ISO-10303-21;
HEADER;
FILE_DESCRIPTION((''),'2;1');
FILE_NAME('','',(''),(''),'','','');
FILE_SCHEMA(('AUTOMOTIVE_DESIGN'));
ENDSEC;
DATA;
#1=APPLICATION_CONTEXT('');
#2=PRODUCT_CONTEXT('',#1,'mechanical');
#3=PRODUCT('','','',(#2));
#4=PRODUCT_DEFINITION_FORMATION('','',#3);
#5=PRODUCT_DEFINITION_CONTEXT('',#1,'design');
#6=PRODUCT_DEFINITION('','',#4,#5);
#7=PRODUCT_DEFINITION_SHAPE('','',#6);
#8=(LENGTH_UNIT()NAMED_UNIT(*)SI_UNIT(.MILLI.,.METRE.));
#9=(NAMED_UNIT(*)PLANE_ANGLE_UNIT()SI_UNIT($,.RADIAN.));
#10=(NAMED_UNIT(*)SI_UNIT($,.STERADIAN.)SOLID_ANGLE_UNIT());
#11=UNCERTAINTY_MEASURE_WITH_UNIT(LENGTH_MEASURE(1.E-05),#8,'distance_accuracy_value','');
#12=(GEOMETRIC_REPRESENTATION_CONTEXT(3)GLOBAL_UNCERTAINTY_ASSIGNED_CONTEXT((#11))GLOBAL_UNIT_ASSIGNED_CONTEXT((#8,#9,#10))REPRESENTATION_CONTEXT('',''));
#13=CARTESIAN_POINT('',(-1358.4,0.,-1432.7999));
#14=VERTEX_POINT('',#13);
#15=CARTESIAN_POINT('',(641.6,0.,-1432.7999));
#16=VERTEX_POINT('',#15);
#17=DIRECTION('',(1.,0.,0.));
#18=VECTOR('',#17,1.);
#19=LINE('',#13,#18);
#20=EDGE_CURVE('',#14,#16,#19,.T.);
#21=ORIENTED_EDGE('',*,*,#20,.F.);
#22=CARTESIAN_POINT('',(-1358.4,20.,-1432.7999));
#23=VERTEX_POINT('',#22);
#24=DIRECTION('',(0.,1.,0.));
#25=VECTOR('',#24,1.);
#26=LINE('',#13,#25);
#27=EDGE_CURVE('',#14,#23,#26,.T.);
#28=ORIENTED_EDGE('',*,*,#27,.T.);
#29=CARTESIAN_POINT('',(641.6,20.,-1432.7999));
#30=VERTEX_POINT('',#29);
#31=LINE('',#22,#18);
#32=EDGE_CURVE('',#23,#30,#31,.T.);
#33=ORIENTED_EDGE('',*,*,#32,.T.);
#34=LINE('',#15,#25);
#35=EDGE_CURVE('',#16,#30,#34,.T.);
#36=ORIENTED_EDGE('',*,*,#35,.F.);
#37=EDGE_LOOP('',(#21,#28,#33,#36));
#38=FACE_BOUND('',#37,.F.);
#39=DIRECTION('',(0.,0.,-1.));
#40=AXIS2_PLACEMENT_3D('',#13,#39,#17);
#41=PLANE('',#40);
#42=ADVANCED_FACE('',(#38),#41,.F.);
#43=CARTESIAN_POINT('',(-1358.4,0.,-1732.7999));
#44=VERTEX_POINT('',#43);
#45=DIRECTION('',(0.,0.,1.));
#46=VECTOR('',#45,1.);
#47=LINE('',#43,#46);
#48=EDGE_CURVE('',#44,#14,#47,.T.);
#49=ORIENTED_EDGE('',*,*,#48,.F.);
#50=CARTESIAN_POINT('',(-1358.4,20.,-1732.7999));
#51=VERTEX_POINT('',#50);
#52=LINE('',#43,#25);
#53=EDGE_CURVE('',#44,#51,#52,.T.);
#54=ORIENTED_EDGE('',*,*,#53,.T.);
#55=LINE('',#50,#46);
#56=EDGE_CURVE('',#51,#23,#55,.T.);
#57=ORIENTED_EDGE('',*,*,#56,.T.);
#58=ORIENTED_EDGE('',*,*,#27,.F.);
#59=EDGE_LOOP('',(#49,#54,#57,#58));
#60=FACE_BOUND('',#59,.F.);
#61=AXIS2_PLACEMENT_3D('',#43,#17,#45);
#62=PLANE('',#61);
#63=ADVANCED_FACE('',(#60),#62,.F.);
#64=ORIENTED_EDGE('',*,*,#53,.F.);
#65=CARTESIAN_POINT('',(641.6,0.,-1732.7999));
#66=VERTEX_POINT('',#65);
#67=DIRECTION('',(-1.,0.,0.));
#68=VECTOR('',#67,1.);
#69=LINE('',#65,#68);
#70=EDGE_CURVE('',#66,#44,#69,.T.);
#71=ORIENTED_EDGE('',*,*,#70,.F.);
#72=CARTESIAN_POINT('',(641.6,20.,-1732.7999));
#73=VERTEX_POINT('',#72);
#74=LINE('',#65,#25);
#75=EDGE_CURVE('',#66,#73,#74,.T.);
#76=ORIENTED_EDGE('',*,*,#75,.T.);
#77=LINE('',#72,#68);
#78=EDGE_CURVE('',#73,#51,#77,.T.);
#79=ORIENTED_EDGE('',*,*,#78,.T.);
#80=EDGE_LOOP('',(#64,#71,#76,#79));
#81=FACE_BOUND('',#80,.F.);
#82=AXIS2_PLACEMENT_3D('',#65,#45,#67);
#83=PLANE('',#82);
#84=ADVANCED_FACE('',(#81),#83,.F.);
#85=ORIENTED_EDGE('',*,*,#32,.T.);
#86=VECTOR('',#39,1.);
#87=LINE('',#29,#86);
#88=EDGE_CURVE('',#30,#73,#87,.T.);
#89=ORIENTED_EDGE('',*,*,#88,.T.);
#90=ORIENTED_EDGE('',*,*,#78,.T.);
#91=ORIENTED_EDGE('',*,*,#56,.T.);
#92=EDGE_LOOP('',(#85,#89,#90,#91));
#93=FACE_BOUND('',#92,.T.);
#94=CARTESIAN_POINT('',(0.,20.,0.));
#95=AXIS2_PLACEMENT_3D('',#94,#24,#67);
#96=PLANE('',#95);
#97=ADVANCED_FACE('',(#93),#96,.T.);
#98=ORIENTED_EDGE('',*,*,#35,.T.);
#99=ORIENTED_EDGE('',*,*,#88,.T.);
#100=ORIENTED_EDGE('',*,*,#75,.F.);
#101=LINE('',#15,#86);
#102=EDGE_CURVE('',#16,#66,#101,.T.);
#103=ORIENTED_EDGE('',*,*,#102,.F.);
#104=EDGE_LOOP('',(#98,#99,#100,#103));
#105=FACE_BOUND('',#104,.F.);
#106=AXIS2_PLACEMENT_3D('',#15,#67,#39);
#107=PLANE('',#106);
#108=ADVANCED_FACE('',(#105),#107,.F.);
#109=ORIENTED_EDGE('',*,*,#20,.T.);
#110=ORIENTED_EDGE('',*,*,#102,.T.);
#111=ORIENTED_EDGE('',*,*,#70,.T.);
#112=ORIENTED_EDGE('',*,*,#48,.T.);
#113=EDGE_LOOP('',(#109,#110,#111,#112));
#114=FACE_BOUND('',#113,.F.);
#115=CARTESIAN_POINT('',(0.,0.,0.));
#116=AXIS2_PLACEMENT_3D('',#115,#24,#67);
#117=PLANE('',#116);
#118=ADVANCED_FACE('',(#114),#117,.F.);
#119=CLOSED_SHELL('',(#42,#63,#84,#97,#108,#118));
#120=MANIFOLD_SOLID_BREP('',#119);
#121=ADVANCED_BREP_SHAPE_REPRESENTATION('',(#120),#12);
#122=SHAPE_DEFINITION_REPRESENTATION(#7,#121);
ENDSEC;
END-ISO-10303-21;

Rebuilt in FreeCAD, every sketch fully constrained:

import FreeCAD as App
import Part
import Sketcher


def add_polygon(sketch, points):
    """Adds a closed chain of lines whose ends are joined by coincident constraints."""
    first, n = sketch.GeometryCount, len(points)
    for a, b in zip(points, points[1:] + points[:1]):
        sketch.addGeometry(Part.LineSegment(App.Vector(*a, 0), App.Vector(*b, 0)), False)
    for i in range(n):
        sketch.addConstraint(Sketcher.Constraint("Coincident", first + i, 2, first + (i + 1) % n, 1))

doc = App.newDocument("Part")
body = doc.addObject("PartDesign::Body", "Body")

# Sketch on XZ plane
sketch1 = doc.addObject("Sketcher::SketchObject", "Sketch")
body.addObject(sketch1)
sketch1.AttachmentSupport = (doc.XZ_Plane, [""])
sketch1.MapMode = "FlatFace"
add_polygon(sketch1, [(-1358, -1733), (-1358, -1433), (642, -1433), (642, -1733)])  # lines 0-3
sketch1.addConstraint(Sketcher.Constraint("Vertical", 0))
sketch1.addConstraint(Sketcher.Constraint("Horizontal", 1))
sketch1.addConstraint(Sketcher.Constraint("Vertical", 2))
sketch1.addConstraint(Sketcher.Constraint("Horizontal", 3))
sketch1.addConstraint(Sketcher.Constraint("DistanceX", 1, 1, 1, 2, 2000.0))
sketch1.addConstraint(Sketcher.Constraint("DistanceY", 0, 1, 0, 2, 300.0))
sketch1.addConstraint(Sketcher.Constraint("DistanceX", 0, 2, -1, 1, 1358.4))
sketch1.addConstraint(Sketcher.Constraint("DistanceY", 0, 2, -1, 1, 1432.8))
pad1 = doc.addObject("PartDesign::Pad", "Pad")
body.addObject(pad1)
pad1.Profile = sketch1
pad1.Length = 20
pad1.Reversed = True

doc.recompute()
